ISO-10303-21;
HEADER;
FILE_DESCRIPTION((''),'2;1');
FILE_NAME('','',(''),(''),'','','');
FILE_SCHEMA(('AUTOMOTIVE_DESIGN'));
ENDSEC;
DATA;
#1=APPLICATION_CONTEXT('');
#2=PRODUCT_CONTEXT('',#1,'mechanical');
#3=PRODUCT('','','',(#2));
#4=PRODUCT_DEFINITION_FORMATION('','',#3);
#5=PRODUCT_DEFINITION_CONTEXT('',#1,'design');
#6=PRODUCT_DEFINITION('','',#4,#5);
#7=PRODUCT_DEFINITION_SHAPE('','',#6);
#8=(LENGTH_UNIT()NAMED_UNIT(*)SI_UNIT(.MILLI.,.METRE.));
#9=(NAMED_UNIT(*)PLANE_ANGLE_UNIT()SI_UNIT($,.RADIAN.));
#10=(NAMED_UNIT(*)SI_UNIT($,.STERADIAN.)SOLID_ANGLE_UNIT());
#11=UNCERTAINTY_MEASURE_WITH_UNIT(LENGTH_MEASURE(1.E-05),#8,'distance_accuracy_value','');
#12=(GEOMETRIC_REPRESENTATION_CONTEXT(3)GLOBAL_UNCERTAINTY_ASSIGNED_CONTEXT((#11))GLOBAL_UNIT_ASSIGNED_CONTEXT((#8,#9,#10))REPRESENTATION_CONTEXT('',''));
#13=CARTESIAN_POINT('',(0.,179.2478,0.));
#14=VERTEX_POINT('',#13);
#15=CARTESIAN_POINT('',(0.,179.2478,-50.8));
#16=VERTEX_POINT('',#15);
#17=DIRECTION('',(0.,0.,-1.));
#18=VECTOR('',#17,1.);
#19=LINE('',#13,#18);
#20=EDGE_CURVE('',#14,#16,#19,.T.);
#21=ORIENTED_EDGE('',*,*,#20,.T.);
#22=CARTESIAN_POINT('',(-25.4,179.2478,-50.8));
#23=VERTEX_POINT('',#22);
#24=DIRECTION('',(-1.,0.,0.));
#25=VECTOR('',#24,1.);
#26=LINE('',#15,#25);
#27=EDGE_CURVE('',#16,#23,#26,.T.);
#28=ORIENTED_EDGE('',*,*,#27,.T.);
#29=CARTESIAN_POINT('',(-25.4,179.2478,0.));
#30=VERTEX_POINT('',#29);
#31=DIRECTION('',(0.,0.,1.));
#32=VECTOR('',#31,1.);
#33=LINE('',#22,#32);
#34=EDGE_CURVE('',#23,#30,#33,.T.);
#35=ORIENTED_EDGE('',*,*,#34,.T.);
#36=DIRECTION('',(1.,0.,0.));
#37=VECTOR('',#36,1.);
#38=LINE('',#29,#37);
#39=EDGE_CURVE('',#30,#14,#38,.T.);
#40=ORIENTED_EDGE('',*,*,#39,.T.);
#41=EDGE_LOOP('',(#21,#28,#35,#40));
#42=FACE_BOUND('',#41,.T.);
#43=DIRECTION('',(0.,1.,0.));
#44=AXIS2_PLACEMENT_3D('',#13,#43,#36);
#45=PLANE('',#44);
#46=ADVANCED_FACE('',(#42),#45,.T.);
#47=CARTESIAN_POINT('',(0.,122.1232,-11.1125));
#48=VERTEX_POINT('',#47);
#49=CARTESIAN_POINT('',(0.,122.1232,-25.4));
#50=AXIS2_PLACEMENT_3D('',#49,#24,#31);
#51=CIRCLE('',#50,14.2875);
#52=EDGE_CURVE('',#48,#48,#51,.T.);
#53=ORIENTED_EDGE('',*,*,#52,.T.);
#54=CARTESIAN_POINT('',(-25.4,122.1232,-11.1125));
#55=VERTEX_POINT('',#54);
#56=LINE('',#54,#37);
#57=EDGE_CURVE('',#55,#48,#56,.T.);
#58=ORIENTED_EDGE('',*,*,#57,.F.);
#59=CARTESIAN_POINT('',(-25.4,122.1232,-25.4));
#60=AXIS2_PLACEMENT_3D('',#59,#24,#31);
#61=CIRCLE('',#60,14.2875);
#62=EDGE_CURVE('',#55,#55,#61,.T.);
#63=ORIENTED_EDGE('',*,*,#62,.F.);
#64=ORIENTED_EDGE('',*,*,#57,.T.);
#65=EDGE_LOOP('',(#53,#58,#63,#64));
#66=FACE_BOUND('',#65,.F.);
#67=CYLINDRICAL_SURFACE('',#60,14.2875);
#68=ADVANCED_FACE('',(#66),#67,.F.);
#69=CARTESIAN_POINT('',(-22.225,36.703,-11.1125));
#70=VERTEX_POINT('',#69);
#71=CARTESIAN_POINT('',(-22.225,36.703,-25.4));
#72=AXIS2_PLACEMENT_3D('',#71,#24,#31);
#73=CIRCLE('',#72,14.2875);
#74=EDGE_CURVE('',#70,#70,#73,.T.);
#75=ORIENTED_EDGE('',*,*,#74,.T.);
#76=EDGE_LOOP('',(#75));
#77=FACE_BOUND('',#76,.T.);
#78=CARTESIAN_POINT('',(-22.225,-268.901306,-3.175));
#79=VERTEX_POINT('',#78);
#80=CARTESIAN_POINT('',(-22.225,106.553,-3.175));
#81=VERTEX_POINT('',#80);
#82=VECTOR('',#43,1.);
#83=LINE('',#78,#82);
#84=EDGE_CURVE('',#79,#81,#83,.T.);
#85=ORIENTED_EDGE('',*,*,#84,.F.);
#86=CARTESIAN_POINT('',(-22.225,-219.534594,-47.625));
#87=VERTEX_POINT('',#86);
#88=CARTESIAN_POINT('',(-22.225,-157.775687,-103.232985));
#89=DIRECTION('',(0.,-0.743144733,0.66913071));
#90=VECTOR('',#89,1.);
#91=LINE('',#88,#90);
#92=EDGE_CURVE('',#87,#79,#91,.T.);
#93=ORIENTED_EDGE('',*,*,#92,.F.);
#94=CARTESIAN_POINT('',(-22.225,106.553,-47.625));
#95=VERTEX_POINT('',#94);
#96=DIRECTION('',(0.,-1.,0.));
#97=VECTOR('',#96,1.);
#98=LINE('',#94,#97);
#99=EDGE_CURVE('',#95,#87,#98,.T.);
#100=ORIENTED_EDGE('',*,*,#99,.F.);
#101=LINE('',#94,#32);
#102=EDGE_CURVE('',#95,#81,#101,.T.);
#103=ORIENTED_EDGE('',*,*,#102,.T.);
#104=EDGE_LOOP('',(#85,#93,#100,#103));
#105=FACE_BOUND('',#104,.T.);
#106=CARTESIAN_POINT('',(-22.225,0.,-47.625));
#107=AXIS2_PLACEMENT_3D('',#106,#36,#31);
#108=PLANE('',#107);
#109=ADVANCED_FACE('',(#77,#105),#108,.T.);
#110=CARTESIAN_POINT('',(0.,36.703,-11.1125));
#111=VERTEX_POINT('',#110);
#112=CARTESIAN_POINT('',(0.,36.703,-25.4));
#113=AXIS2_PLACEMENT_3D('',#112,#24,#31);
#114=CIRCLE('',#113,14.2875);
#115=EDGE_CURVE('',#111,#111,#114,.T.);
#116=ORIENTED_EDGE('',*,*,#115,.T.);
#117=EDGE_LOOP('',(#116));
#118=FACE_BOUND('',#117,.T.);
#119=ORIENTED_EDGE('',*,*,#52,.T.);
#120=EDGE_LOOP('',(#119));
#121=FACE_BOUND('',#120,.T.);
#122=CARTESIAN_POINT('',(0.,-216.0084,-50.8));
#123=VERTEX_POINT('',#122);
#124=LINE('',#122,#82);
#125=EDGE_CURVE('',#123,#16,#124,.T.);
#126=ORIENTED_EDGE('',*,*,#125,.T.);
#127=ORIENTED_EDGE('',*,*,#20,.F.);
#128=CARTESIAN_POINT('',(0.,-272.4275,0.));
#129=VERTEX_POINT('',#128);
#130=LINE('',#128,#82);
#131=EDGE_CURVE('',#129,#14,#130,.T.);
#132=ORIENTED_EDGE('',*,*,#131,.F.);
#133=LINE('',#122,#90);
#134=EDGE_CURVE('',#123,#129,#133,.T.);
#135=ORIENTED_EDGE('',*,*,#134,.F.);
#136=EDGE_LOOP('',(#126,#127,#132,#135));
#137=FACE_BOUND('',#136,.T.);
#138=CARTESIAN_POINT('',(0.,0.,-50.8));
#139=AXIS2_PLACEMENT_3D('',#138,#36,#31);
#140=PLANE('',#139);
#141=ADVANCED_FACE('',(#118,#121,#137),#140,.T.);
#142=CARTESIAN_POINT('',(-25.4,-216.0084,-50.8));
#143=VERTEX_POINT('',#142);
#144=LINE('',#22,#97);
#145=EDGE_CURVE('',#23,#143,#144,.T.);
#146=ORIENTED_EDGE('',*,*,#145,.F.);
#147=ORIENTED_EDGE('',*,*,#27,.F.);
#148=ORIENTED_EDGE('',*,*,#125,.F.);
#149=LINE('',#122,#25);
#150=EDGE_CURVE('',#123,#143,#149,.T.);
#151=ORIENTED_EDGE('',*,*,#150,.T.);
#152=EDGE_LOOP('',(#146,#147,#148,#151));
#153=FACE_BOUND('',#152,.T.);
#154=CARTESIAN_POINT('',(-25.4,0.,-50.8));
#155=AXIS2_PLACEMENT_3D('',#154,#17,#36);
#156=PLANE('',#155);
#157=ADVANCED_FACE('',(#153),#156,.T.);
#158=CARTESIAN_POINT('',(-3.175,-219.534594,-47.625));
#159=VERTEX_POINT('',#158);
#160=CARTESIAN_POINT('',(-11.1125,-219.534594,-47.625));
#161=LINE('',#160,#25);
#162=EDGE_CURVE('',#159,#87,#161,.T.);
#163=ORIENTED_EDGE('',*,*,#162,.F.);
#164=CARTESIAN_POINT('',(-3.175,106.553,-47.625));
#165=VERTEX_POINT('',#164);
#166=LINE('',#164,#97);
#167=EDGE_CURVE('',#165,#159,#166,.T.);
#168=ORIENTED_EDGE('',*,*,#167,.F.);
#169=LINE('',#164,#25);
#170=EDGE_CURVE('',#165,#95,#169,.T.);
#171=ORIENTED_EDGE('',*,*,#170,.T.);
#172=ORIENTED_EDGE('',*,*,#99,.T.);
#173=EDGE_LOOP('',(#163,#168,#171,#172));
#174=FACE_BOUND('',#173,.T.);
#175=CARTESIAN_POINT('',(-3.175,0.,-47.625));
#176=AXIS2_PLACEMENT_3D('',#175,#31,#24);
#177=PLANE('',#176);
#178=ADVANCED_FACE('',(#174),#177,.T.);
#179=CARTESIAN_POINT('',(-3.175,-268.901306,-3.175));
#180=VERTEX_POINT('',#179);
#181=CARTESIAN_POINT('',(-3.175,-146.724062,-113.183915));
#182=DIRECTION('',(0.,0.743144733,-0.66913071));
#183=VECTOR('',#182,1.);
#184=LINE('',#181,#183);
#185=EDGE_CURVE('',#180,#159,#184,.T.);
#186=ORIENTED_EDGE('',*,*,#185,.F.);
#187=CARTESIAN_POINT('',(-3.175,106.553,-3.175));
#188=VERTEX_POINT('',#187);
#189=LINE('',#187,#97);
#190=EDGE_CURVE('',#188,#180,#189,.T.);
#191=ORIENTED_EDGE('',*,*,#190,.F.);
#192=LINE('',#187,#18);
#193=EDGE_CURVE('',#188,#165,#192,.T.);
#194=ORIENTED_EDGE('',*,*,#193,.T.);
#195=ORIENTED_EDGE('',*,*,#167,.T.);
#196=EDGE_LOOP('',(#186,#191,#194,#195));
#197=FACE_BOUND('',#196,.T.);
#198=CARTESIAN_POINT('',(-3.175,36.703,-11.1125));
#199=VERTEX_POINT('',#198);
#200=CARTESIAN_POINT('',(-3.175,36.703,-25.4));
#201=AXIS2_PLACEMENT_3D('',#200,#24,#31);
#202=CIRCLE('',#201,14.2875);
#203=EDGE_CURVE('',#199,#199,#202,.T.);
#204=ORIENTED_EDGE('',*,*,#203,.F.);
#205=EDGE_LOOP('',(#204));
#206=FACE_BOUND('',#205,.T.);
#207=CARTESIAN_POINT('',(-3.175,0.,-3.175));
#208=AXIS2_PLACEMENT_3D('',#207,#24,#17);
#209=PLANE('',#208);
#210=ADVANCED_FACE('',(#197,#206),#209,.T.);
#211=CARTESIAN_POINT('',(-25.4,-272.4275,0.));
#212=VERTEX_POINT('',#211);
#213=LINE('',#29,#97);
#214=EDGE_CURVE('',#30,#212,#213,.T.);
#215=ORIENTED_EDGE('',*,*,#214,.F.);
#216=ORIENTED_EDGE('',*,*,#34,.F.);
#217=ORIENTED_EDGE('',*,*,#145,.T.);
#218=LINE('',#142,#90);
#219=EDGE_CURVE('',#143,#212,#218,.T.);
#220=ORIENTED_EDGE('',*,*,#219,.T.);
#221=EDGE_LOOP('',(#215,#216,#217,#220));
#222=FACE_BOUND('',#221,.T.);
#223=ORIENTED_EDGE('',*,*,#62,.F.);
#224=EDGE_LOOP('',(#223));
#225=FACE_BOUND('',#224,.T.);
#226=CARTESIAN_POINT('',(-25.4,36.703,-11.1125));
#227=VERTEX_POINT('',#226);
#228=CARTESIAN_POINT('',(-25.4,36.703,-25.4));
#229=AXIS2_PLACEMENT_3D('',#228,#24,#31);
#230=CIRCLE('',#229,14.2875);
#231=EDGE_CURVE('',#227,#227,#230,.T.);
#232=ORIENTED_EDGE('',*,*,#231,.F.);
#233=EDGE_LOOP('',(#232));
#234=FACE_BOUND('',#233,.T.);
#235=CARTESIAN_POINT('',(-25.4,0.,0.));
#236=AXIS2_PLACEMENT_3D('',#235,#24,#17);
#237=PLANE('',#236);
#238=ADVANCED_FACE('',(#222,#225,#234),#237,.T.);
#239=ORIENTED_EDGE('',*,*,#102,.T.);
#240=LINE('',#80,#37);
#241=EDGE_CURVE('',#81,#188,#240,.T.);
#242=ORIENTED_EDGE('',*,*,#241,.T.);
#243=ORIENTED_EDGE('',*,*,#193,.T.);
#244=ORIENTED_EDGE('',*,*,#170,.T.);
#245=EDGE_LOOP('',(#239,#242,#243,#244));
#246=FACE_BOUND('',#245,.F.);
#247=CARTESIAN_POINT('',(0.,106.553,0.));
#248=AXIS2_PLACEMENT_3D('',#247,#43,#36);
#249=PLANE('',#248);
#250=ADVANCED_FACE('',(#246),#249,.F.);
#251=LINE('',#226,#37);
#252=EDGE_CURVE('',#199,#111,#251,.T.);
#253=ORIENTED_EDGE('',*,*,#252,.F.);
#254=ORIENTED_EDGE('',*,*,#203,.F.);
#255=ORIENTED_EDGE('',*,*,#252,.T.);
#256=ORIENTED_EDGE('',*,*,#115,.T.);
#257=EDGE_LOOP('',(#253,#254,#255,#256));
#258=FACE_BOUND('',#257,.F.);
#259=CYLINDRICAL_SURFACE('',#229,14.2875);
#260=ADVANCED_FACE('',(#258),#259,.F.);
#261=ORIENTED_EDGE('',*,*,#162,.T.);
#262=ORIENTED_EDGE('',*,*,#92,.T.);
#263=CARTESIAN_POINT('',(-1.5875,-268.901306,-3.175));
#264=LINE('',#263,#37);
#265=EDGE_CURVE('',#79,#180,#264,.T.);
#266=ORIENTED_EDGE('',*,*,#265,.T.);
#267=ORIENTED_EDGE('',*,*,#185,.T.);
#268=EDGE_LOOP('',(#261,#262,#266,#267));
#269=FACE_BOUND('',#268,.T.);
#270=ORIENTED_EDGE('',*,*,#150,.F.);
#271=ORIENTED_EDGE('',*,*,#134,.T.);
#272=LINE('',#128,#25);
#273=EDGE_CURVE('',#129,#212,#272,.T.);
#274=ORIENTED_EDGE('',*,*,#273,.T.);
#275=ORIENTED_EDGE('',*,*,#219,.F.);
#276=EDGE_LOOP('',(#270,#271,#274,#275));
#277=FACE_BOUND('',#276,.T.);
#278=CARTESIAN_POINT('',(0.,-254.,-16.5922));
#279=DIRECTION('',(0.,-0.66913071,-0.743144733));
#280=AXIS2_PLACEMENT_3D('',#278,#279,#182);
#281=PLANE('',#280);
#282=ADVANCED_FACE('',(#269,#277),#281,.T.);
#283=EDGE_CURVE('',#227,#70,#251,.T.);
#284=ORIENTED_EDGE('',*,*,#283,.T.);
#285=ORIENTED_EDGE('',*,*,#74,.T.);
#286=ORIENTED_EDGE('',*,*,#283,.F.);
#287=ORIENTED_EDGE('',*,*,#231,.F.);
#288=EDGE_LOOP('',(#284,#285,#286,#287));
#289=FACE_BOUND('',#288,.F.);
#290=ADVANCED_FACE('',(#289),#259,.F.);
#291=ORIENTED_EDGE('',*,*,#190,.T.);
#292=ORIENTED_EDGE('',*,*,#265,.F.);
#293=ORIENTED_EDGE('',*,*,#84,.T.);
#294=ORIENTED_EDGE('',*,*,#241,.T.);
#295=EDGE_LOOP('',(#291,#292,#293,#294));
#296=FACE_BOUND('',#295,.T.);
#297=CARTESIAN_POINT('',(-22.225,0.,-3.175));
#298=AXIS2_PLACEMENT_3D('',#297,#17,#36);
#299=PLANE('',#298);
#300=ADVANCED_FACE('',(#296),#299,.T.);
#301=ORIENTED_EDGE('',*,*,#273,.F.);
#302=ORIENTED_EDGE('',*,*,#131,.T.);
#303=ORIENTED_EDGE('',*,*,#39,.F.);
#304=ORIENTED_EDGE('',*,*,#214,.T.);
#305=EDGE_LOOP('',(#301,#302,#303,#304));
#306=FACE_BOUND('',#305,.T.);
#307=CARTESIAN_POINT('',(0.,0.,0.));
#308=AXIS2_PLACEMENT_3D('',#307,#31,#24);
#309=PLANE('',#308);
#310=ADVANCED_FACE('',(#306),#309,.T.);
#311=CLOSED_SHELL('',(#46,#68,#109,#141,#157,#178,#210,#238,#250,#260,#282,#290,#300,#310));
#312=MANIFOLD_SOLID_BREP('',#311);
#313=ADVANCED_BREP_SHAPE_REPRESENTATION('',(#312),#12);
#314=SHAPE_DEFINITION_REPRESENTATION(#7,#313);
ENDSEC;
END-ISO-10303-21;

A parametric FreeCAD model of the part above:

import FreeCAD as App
import Part
import Sketcher
from FreeCAD import Vector
Q = App.Units.Quantity


def add_polygon(sketch, points):
    """Adds a closed chain of lines whose ends are joined by coincident constraints."""
    first, n = sketch.GeometryCount, len(points)
    for a, b in zip(points, points[1:] + points[:1]):
        sketch.addGeometry(Part.LineSegment(App.Vector(*a, 0), App.Vector(*b, 0)), False)
    for i in range(n):
        sketch.addConstraint(Sketcher.Constraint("Coincident", first + i, 2, first + (i + 1) % n, 1))

doc = App.newDocument("Part")
body = doc.addObject("PartDesign::Body", "Body")

# Sketch on XZ plane
sketch1 = doc.addObject("Sketcher::SketchObject", "Sketch")
body.addObject(sketch1)
sketch1.AttachmentSupport = (doc.XZ_Plane, [""])
sketch1.MapMode = "FlatFace"
add_polygon(sketch1, [(-25.4, 0), (0, 0), (0, -50.8), (-25.4, -50.8)])  # lines 0-3
add_polygon(sketch1, [(-3.175, -3.175), (-22.225, -3.175), (-22.225, -47.625), (-3.175, -47.625)])  # lines 4-7
sketch1.addConstraint([
    Sketcher.Constraint("Horizontal", 0),
    Sketcher.Constraint("Vertical", 1),
    Sketcher.Constraint("Horizontal", 2),
    Sketcher.Constraint("Vertical", 3),
    Sketcher.Constraint("Horizontal", 4),
    Sketcher.Constraint("Vertical", 5),
    Sketcher.Constraint("Horizontal", 6),
    Sketcher.Constraint("Vertical", 7),
    Sketcher.Constraint("Coincident", 0, 2, -1, 1),
    Sketcher.Constraint("DistanceX", 0, 1, 0, 2, Q("1 in")),
    Sketcher.Constraint("DistanceY", 1, 2, 1, 1, Q("2 in")),
    Sketcher.Constraint("DistanceY", 4, 2, -1, 1, Q("0.125 in")),
    Sketcher.Constraint("DistanceX", 6, 2, -1, 1, Q("0.125 in")),
    Sketcher.Constraint("DistanceX", 3, 2, 4, 2, Q("0.125 in")),
    Sketcher.Constraint("DistanceY", 2, 2, 5, 2, Q("0.125 in")),
])
pad1 = doc.addObject("PartDesign::Pad", "Pad")
body.addObject(pad1)
pad1.Profile = sketch1
pad1.Length = Q("4.195 in")
pad1.Reversed = True

# Sketch on XZ plane
sketch2 = doc.addObject("Sketcher::SketchObject", "Sketch001")
body.addObject(sketch2)
sketch2.AttachmentSupport = (doc.XZ_Plane, [""])
sketch2.MapMode = "FlatFace"
add_polygon(sketch2, [(0, -50.8), (0, 0), (-25.4, 0), (-25.4, -50.8)])  # lines 0-3
add_polygon(sketch2, [(-3.175, -47.625), (-22.225, -47.625), (-22.225, -3.175), (-3.175, -3.175)])  # lines 4-7
sketch2.addConstraint([
    Sketcher.Constraint("Vertical", 0),
    Sketcher.Constraint("Horizontal", 1),
    Sketcher.Constraint("Vertical", 2),
    Sketcher.Constraint("Horizontal", 3),
    Sketcher.Constraint("Horizontal", 4),
    Sketcher.Constraint("Vertical", 5),
    Sketcher.Constraint("Horizontal", 6),
    Sketcher.Constraint("Vertical", 7),
    Sketcher.Constraint("Coincident", 0, 2, -1, 1),
    Sketcher.Constraint("DistanceX", 1, 2, 1, 1, Q("1 in")),
    Sketcher.Constraint("DistanceY", 0, 1, 0, 2, Q("2 in")),
    Sketcher.Constraint("DistanceX", 4, 2, 4, 1, Q("0.75 in")),
    Sketcher.Constraint("DistanceY", 5, 1, 5, 2, Q("1.75 in")),
    Sketcher.Constraint("DistanceX", 4, 2, -1, 1, Q("0.875 in")),
    Sketcher.Constraint("DistanceY", 4, 2, -1, 1, Q("1.875 in")),
])
pad2 = doc.addObject("PartDesign::Pad", "Pad001")
body.addObject(pad2)
pad2.Profile = sketch2
pad2.Length = Q("10 in")

# Sketch on YZ plane
sketch3 = doc.addObject("Sketcher::SketchObject", "Sketch002")
body.addObject(sketch3)
sketch3.AttachmentSupport = (doc.YZ_Plane, [""])
sketch3.MapMode = "FlatFace"
add_polygon(sketch3, [(-216.0084, -50.8), (-216.0084, 0), (-272.4275, 0)])  # lines 0-2
sketch3.addConstraint([
    Sketcher.Constraint("Vertical", 0),
    Sketcher.Constraint("Horizontal", 1),
    Sketcher.Constraint("PointOnObject", 0, 2, -1),
    Sketcher.Constraint("DistanceY", 0, 1, 0, 2, Q("2 in")),
    Sketcher.Constraint("Angle", 2, Q("-42 deg")),
    Sketcher.Constraint("DistanceX", 1, 2, -1, 1, Q("10.7255 in")),
])
pad3 = doc.addObject("PartDesign::Pad", "Pad002")
body.addObject(pad3)
pad3.Profile = sketch3
pad3.Length = Q("1 in")
pad3.Reversed = True

# Sketch on YZ plane
sketch4 = doc.addObject("Sketcher::SketchObject", "Sketch003")
body.addObject(sketch4)
sketch4.AttachmentSupport = (doc.YZ_Plane, [""])
sketch4.MapMode = "FlatFace"
add_polygon(sketch4, [(-216.0084, -50.8), (-272.4275, 0), (-272.4275, -50.8)])  # lines 0-2
sketch4.addConstraint([
    Sketcher.Constraint("Vertical", 1),
    Sketcher.Constraint("Horizontal", 2),
    Sketcher.Constraint("PointOnObject", 0, 2, -1),
    Sketcher.Constraint("DistanceY", 1, 2, 1, 1, Q("2 in")),
    Sketcher.Constraint("Angle", 0, Q("138 deg")),
    Sketcher.Constraint("DistanceX", 0, 2, -1, 1, Q("10.7255 in")),
])
pocket1 = doc.addObject("PartDesign::Pocket", "Pocket")
body.addObject(pocket1)
pocket1.Profile = sketch4
pocket1.Length = Q("1 in")

# Sketch on XZ plane
sketch5 = doc.addObject("Sketcher::SketchObject", "Sketch004")
body.addObject(sketch5)
sketch5.AttachmentSupport = (doc.XZ_Plane, [""])
sketch5.MapMode = "FlatFace"
sketch5.AttachmentOffset = App.Placement(Vector(0, 0, -4.195 * 25.4), App.Rotation())
add_polygon(sketch5, [(-22.225, -47.625), (-22.225, -3.175), (-3.175, -3.175), (-3.175, -47.625)])  # lines 0-3
sketch5.addConstraint([
    Sketcher.Constraint("Vertical", 0),
    Sketcher.Constraint("Horizontal", 1),
    Sketcher.Constraint("Vertical", 2),
    Sketcher.Constraint("Horizontal", 3),
    Sketcher.Constraint("DistanceX", 1, 1, 1, 2, Q("0.75 in")),
    Sketcher.Constraint("DistanceY", 0, 1, 0, 2, Q("1.75 in")),
    Sketcher.Constraint("DistanceX", 0, 2, -1, 1, Q("0.875 in")),
    Sketcher.Constraint("DistanceY", 0, 2, -1, 1, Q("0.125 in")),
])
pocket2 = doc.addObject("PartDesign::Pocket", "Pocket001")
body.addObject(pocket2)
pocket2.Profile = sketch5
pocket2.Type = "ThroughAll"
pocket2.Reversed = True

# Sketch on XZ plane
sketch6 = doc.addObject("Sketcher::SketchObject", "Sketch005")
body.addObject(sketch6)
sketch6.AttachmentSupport = (doc.XZ_Plane, [""])
sketch6.MapMode = "FlatFace"
sketch6.AttachmentOffset = App.Placement(Vector(0, 0, -4.195 * 25.4), App.Rotation())
add_polygon(sketch6, [(0, 0), (0, -50.8), (-25.4, -50.8), (-25.4, 0)])  # lines 0-3
sketch6.addConstraint([
    Sketcher.Constraint("Vertical", 0),
    Sketcher.Constraint("Horizontal", 1),
    Sketcher.Constraint("Vertical", 2),
    Sketcher.Constraint("Horizontal", 3),
    Sketcher.Constraint("Coincident", 3, 2, -1, 1),
    Sketcher.Constraint("DistanceX", 1, 2, 1, 1, Q("1 in")),
    Sketcher.Constraint("DistanceY", 0, 2, 0, 1, Q("2 in")),
])
pad4 = doc.addObject("PartDesign::Pad", "Pad003")
body.addObject(pad4)
pad4.Profile = sketch6
pad4.Length = Q("2.862 in")
pad4.Reversed = True

# Sketch on YZ plane
sketch7 = doc.addObject("Sketcher::SketchObject", "Sketch006")
body.addObject(sketch7)
sketch7.AttachmentSupport = (doc.YZ_Plane, [""])
sketch7.MapMode = "FlatFace"
sketch7.AttachmentOffset = App.Placement(Vector(0, 0, -1 * 25.4), App.Rotation())
sketch7.addGeometry(Part.Circle(Vector(122.1232, -25.4, 0), Vector(0, 0, 1), 14.2875), False)
sketch7.addConstraint([
    Sketcher.Constraint("Diameter", 0, Q("1.125 in")),
    Sketcher.Constraint("DistanceY", 0, 3, -1, 1, Q("1 in")),
    Sketcher.Constraint("DistanceX", -1, 1, 0, 3, Q("4.808 in")),
])
pocket3 = doc.addObject("PartDesign::Pocket", "Pocket002")
body.addObject(pocket3)
pocket3.Profile = sketch7
pocket3.Length = Q("6.25 in")
pocket3.Reversed = True

# Sketch on YZ plane
sketch8 = doc.addObject("Sketcher::SketchObject", "Sketch007")
body.addObject(sketch8)
sketch8.AttachmentSupport = (doc.YZ_Plane, [""])
sketch8.MapMode = "FlatFace"
sketch8.AttachmentOffset = App.Placement(Vector(0, 0, -1 * 25.4), App.Rotation())
sketch8.addGeometry(Part.Circle(Vector(36.703, -25.4, 0), Vector(0, 0, 1), 14.2875), False)
sketch8.addConstraint([
    Sketcher.Constraint("Diameter", 0, Q("1.125 in")),
    Sketcher.Constraint("DistanceY", 0, 3, -1, 1, Q("1 in")),
    Sketcher.Constraint("DistanceX", -1, 1, 0, 3, Q("1.445 in")),
])
pocket4 = doc.addObject("PartDesign::Pocket", "Pocket003")
body.addObject(pocket4)
pocket4.Profile = sketch8
pocket4.Length = Q("6.25 in")
pocket4.Reversed = True

doc.recompute()
